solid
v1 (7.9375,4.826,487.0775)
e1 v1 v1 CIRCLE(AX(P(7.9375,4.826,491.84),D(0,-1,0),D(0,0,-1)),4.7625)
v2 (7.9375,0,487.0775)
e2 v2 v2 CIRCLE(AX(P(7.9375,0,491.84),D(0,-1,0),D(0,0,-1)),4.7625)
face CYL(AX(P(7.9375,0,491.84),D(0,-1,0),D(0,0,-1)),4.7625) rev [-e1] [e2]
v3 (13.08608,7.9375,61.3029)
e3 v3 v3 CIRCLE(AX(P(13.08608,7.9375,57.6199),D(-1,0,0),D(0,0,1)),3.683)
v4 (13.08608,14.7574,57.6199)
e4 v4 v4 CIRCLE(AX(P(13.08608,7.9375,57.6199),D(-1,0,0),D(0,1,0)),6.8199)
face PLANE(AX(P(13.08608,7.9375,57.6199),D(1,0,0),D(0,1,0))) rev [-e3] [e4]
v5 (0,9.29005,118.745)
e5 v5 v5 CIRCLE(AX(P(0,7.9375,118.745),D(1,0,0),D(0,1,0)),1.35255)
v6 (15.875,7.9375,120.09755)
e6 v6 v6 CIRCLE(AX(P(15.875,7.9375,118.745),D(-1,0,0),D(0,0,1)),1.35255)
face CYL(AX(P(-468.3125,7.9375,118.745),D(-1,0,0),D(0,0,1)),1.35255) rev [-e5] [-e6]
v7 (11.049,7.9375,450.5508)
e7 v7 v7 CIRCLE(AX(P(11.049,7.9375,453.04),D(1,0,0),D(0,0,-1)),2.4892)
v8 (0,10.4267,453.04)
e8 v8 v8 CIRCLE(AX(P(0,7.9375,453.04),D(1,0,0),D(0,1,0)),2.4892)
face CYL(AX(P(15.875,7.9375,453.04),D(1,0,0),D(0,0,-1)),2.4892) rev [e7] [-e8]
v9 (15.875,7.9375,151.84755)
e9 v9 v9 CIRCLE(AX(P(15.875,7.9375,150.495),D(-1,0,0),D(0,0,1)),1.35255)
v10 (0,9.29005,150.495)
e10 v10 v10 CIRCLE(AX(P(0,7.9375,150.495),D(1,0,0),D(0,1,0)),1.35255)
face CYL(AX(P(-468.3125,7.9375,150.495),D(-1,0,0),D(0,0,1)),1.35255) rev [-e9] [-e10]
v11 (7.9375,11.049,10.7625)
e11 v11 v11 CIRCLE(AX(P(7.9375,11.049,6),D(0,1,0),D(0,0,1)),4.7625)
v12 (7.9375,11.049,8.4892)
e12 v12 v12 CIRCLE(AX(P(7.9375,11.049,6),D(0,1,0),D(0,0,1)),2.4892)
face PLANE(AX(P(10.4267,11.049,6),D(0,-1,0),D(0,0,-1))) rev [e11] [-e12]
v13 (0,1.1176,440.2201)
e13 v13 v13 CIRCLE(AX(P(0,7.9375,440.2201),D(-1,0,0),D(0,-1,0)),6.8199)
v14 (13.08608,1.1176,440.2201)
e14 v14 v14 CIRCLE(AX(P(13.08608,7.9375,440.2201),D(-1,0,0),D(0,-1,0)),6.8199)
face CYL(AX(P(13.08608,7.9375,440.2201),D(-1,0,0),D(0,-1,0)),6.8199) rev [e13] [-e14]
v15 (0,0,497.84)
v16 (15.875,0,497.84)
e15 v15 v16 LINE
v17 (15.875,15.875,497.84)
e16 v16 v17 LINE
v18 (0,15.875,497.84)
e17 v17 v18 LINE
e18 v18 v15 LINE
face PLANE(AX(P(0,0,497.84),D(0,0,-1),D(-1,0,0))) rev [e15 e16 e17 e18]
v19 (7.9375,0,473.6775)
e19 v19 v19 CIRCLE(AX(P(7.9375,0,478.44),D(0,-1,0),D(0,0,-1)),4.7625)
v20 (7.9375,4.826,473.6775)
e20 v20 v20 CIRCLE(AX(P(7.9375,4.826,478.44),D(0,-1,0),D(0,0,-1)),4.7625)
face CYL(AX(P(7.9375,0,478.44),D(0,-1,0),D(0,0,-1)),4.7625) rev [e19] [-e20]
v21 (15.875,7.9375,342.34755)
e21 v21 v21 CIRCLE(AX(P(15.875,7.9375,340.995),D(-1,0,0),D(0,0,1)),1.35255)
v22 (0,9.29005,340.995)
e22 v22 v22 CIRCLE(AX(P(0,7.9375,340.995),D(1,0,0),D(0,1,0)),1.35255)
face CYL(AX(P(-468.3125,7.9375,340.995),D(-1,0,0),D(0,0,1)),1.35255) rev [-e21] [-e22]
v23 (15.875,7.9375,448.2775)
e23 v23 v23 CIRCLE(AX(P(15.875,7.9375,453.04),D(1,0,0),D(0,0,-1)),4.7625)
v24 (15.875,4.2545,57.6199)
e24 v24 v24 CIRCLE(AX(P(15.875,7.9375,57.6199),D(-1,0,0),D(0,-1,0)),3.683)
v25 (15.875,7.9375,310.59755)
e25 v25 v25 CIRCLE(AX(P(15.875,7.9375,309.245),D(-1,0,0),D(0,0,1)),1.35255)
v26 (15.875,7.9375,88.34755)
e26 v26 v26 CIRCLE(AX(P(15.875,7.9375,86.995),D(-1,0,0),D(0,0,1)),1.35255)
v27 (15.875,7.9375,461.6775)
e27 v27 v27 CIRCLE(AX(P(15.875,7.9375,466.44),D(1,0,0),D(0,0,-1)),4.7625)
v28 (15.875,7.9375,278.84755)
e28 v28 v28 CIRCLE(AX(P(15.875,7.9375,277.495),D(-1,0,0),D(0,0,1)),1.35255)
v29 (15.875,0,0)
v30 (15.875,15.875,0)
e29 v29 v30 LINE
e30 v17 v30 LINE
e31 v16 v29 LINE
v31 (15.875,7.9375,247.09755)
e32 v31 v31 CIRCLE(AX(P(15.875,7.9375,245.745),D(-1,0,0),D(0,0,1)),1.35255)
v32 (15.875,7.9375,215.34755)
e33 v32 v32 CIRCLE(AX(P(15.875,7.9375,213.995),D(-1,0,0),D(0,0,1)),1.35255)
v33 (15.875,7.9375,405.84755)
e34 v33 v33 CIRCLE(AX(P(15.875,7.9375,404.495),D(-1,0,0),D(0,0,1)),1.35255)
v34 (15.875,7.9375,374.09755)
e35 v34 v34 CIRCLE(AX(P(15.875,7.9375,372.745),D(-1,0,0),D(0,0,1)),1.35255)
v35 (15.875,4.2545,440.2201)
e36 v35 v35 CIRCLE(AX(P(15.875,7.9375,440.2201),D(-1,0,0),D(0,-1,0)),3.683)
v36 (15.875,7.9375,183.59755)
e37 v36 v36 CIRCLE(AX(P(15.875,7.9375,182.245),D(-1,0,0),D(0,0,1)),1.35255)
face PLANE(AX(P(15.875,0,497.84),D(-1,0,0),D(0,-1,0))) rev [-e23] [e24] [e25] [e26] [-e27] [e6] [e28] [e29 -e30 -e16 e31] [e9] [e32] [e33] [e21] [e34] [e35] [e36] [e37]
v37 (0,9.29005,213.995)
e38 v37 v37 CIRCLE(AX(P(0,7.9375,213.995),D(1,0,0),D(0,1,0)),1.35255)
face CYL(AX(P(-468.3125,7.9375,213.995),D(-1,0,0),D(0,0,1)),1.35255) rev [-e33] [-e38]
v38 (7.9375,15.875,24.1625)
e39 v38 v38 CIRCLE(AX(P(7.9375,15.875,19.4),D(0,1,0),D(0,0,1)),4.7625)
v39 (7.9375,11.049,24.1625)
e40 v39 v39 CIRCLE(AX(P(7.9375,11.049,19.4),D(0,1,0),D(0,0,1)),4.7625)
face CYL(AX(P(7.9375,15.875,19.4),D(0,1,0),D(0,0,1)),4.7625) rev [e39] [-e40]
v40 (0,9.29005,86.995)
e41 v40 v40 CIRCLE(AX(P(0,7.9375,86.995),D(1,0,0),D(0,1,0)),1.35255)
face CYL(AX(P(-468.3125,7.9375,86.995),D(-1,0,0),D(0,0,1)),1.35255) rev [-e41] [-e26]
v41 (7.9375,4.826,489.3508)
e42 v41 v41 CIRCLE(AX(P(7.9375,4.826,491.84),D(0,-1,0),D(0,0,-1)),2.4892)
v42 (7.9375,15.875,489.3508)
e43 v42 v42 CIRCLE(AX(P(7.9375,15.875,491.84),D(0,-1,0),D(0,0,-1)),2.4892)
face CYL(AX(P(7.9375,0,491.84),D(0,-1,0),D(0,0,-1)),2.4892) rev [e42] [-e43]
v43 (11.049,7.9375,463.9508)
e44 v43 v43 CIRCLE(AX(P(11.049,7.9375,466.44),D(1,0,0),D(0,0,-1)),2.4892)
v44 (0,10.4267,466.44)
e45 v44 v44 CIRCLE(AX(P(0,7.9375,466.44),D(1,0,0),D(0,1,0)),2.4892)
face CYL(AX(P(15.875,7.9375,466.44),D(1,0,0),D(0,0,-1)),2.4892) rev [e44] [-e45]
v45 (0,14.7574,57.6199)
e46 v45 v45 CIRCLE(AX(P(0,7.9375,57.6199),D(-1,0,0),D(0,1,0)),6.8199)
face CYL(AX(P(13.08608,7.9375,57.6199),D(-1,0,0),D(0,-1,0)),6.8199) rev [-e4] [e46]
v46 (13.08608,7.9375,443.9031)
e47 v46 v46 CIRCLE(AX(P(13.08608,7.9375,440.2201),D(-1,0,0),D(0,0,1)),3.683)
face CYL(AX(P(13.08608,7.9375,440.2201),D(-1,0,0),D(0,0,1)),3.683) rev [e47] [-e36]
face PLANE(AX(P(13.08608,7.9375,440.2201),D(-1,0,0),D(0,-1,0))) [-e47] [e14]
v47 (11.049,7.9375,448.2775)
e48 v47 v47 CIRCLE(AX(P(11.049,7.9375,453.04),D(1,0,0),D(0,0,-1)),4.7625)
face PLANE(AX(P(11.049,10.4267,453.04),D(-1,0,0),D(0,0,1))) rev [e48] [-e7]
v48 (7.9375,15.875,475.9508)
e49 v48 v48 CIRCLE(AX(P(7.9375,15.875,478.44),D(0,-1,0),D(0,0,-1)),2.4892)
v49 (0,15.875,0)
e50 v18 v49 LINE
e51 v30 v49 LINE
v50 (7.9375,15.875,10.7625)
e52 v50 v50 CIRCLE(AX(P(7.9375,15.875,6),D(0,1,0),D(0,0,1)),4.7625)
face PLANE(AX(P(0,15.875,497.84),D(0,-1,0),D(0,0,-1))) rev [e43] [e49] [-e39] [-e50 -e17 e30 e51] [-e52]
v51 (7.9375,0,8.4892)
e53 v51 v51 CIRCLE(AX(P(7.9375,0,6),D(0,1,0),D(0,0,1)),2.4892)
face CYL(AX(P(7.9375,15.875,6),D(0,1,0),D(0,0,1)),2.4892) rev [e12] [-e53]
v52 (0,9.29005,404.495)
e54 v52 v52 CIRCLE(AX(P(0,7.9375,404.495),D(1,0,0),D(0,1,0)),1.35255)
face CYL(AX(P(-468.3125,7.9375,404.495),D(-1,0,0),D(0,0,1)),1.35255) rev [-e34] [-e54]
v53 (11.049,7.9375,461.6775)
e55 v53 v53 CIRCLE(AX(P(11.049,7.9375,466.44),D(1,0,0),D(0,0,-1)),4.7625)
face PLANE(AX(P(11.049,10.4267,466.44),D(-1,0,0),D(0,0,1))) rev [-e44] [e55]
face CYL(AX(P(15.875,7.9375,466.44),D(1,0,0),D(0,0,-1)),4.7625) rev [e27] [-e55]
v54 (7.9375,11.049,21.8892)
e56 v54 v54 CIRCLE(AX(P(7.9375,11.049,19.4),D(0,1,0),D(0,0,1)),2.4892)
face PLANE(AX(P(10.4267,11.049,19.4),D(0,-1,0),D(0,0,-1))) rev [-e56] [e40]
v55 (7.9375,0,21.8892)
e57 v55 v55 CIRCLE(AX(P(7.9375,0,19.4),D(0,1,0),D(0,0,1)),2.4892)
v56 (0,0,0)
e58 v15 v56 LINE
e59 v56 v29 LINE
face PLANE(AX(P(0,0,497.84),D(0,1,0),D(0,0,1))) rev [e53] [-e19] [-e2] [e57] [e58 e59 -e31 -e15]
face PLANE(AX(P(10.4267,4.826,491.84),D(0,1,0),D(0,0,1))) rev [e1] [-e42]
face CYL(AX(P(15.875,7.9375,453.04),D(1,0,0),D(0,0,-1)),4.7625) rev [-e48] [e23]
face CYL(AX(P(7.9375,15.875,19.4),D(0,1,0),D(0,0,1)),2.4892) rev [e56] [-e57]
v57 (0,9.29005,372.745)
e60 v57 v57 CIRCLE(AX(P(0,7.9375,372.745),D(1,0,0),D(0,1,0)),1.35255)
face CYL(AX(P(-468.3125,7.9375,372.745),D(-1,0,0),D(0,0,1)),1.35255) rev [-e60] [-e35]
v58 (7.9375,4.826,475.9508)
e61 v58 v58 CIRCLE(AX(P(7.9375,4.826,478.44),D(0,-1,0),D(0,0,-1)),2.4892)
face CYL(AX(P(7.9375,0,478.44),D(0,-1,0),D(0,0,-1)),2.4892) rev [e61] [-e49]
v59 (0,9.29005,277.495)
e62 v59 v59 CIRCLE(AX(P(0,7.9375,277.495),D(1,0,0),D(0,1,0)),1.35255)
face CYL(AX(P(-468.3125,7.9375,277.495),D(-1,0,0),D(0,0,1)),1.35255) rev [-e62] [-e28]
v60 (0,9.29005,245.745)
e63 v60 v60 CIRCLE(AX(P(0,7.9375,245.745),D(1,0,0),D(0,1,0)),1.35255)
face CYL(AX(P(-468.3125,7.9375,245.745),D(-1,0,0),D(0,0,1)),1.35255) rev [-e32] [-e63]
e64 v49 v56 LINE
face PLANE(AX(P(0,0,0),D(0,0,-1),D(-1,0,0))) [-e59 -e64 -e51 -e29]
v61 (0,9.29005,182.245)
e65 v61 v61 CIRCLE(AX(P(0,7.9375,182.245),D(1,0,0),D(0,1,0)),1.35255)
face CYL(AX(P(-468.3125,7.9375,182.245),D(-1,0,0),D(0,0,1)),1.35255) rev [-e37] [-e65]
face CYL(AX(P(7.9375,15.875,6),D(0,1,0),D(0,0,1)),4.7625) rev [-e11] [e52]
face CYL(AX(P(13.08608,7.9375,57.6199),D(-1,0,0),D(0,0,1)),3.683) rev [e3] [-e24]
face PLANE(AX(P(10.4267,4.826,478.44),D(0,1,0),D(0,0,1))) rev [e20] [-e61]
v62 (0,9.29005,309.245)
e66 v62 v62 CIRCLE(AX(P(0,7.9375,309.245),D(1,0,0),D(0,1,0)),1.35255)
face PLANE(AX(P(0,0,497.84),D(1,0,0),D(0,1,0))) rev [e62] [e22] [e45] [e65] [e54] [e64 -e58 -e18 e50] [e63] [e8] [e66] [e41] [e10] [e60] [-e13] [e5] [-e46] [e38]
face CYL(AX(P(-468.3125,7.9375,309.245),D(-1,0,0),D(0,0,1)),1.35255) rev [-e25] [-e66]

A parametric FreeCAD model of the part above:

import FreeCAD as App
import Part
import Sketcher
from FreeCAD import Vector
Q = App.Units.Quantity

doc = App.newDocument("Part")
params = doc.addObject("Spreadsheet::Sheet", "Params")
for row, (alias, value) in enumerate([
    ("sketch1_width", "0.625 in"),
    ("pad1_length", "19.6 in"),
    ("sketch2_diameter", "0.537 in"),
    ("pocket1_length", "0.5152 in"),
    ("sketch3_diameter", "0.29 in"),
    ("hole_diameter", "0.29 in"),
    ("hole_depth", "2 in"),
    ("hole2_diameter", "0.1065 in"),
    ("sketch5_diameter", "0.196 in"),
    ("hole3_diameter", "0.196 in"),
    ("hole3_depth", "1 in"),
    ("hole3_cbore_diameter", "0.375 in"),
    ("hole3_cbore_depth", "0.19 in"),
    ("sketch6_diameter", "0.196 in"),
    ("hole4_diameter", "0.196 in"),
    ("hole4_depth", "1 in"),
    ("hole4_cbore_diameter", "0.375 in"),
    ("hole4_cbore_depth", "0.19 in"),
    ("sketch7_diameter", "0.196 in"),
    ("hole5_diameter", "0.196 in"),
    ("hole5_depth", "1 in"),
    ("hole5_cbore_diameter", "0.375 in"),
    ("hole5_cbore_depth", "0.19 in"),
], start=1):
    params.set(f"A{row}", alias)
    params.set(f"B{row}", "=" + value)
    params.setAlias(f"B{row}", alias)

body = doc.addObject("PartDesign::Body", "Body")

sketch1 = body.newObject("Sketcher::SketchObject", "Sketch")
sketch1.AttachmentSupport = (doc.getObject("XY_Plane"), [""])
sketch1.MapMode = "FlatFace"
sketch1.addGeometry([
    Part.LineSegment(Vector(0, 16, 0), Vector(0, 0, 0)),
    Part.LineSegment(Vector(0, 0, 0), Vector(16, 0, 0)),
    Part.LineSegment(Vector(16, 0, 0), Vector(16, 16, 0)),
    Part.LineSegment(Vector(16, 16, 0), Vector(0, 16, 0)),
], False)
sketch1.addConstraint([
    Sketcher.Constraint("Coincident", 0, 2, 1, 1),
    Sketcher.Constraint("Coincident", 1, 2, 2, 1),
    Sketcher.Constraint("Coincident", 2, 2, 3, 1),
    Sketcher.Constraint("Coincident", 3, 2, 0, 1),
    Sketcher.Constraint("Vertical", 0),
    Sketcher.Constraint("Horizontal", 1),
    Sketcher.Constraint("Vertical", 2),
    Sketcher.Constraint("Horizontal", 3),
    Sketcher.Constraint("Coincident", 0, 2, -1, 1),
    Sketcher.Constraint("Equal", 3, 0),
    Sketcher.Constraint("DistanceX", 1, 1, 1, 2, Q("0.625 in")),
])
sketch1.setExpression("Constraints[10]", "Params.sketch1_width")
pad1 = body.newObject("PartDesign::Pad", "Pad")
pad1.Profile = sketch1
pad1.setExpression("Length", "Params.pad1_length")

sketch2 = body.newObject("Sketcher::SketchObject", "Sketch001")
sketch2.AttachmentSupport = (doc.getObject("YZ_Plane"), [""])
sketch2.MapMode = "FlatFace"
sketch2.addGeometry([
    Part.Circle(Vector(8, 440, 0), Vector(0, 0, 1), 7),
    Part.Circle(Vector(8, 58, 0), Vector(0, 0, 1), 7),
], False)
sketch2.addConstraint([
    Sketcher.Constraint("Equal", 0, 1),
    Sketcher.Constraint("Vertical", 0, 3, 1, 3),
    Sketcher.Constraint("Diameter", 0, Q("0.537 in")),
    Sketcher.Constraint("DistanceX", -1, 1, 0, 3, Q("0.3125 in")),
    Sketcher.Constraint("DistanceY", 1, 3, 0, 3, Q("15.063 in")),
    Sketcher.Constraint("DistanceY", -1, 1, 0, 3, Q("17.3315 in")),
])
sketch2.setExpression("Constraints[2]", "Params.sketch2_diameter")
pocket1 = body.newObject("PartDesign::Pocket", "Pocket")
pocket1.Profile = sketch2
pocket1.setExpression("Length", "Params.pocket1_length")
pocket1.Reversed = True

sketch3 = body.newObject("Sketcher::SketchObject", "Sketch002")
sketch3.AttachmentSupport = (doc.getObject("YZ_Plane"), [""])
sketch3.MapMode = "FlatFace"
sketch3.AttachmentOffset = App.Placement(Vector(0, 0, 0.5152 * 25.4), App.Rotation())
sketch3.addGeometry([
    Part.Circle(Vector(7.9, 57.6, 0), Vector(0, 0, 1), 3.7),
    Part.Circle(Vector(7.9, 440.2, 0), Vector(0, 0, 1), 3.7),
], False)
sketch3.addConstraint([
    Sketcher.Constraint("Equal", 0, 1),
    Sketcher.Constraint("Vertical", 0, 3, 1, 3),
    Sketcher.Constraint("Diameter", 0, Q("0.29 in")),
    Sketcher.Constraint("DistanceX", -1, 1, 0, 3, Q("0.3125 in")),
    Sketcher.Constraint("DistanceY", 0, 3, 1, 3, Q("15.063 in")),
    Sketcher.Constraint("DistanceY", -1, 1, 0, 3, Q("2.2685 in")),
])
sketch3.setExpression("Constraints[2]", "Params.sketch3_diameter")
doc.recompute()
hole = body.newObject("PartDesign::Hole", "Hole")
hole.Profile = sketch3
hole.ThreadType = "None"
hole.setExpression("Diameter", "Params.hole_diameter")
hole.DepthType = "Dimension"
hole.setExpression("Depth", "Params.hole_depth")
hole.DrillPoint = "Angled"
hole.DrillPointAngle = 118
hole.Reversed = True

sketch4 = body.newObject("Sketcher::SketchObject", "Sketch003")
sketch4.AttachmentSupport = (doc.getObject("YZ_Plane"), [""])
sketch4.MapMode = "FlatFace"
sketch4.AttachmentOffset = App.Placement(Vector(0, 0, -18.4375 * 25.4), App.Rotation())
sketch4.addGeometry([
    Part.Circle(Vector(7.9, 404.5, 0), Vector(0, 0, 1), 1.4),
    Part.Circle(Vector(7.9, 372.7, 0), Vector(0, 0, 1), 1.4),
    Part.Circle(Vector(7.9, 341, 0), Vector(0, 0, 1), 1.4),
    Part.Circle(Vector(7.9, 309.2, 0), Vector(0, 0, 1), 1.4),
    Part.Circle(Vector(7.9, 277.5, 0), Vector(0, 0, 1), 1.4),
    Part.Circle(Vector(7.9, 245.7, 0), Vector(0, 0, 1), 1.4),
    Part.Circle(Vector(7.9, 214, 0), Vector(0, 0, 1), 1.4),
    Part.Circle(Vector(7.9, 182.2, 0), Vector(0, 0, 1), 1.4),
    Part.Circle(Vector(7.9, 150.5, 0), Vector(0, 0, 1), 1.4),
    Part.Circle(Vector(7.9, 118.7, 0), Vector(0, 0, 1), 1.4),
    Part.Circle(Vector(7.9, 87, 0), Vector(0, 0, 1), 1.4),
], False)
sketch4.addConstraint([
    Sketcher.Constraint("Equal", 0, 1),
    Sketcher.Constraint("Equal", 1, 2),
    Sketcher.Constraint("Equal", 2, 3),
    Sketcher.Constraint("Equal", 3, 4),
    Sketcher.Constraint("Equal", 4, 5),
    Sketcher.Constraint("Equal", 5, 6),
    Sketcher.Constraint("Equal", 6, 7),
    Sketcher.Constraint("Equal", 7, 8),
    Sketcher.Constraint("Equal", 8, 9),
    Sketcher.Constraint("Equal", 9, 10),
    Sketcher.Constraint("Vertical", 0, 3, 1, 3),
    Sketcher.Constraint("Vertical", 1, 3, 2, 3),
    Sketcher.Constraint("Vertical", 2, 3, 3, 3),
    Sketcher.Constraint("Vertical", 3, 3, 4, 3),
    Sketcher.Constraint("Vertical", 4, 3, 5, 3),
    Sketcher.Constraint("Vertical", 5, 3, 6, 3),
    Sketcher.Constraint("Vertical", 6, 3, 7, 3),
    Sketcher.Constraint("Vertical", 7, 3, 8, 3),
    Sketcher.Constraint("Vertical", 8, 3, 9, 3),
    Sketcher.Constraint("Vertical", 9, 3, 10, 3),
    Sketcher.Constraint("DistanceY", 4, 3, 0, 3, Q("5 in")),
    Sketcher.Constraint("DistanceY", 5, 3, 1, 3, Q("5 in")),
    Sketcher.Constraint("DistanceY", 6, 3, 2, 3, Q("5 in")),
    Sketcher.Constraint("DistanceY", 7, 3, 3, 3, Q("5 in")),
    Sketcher.Constraint("DistanceY", 8, 3, 4, 3, Q("5 in")),
    Sketcher.Constraint("DistanceY", 9, 3, 5, 3, Q("5 in")),
    Sketcher.Constraint("DistanceY", 10, 3, 6, 3, Q("5 in")),
    Sketcher.Constraint("Diameter", 0, Q("0.1065 in")),
    Sketcher.Constraint("DistanceY", 2, 3, 0, 3, Q("2.5 in")),
    Sketcher.Constraint("DistanceY", 3, 3, 1, 3, Q("2.5 in")),
    Sketcher.Constraint("DistanceY", 1, 3, 0, 3, Q("1.25 in")),
    Sketcher.Constraint("DistanceX", -1, 1, 0, 3, Q("0.3125 in")),
    Sketcher.Constraint("DistanceY", -1, 1, 0, 3, Q("15.925 in")),
])
doc.recompute()
hole2 = body.newObject("PartDesign::Hole", "Hole001")
hole2.Profile = sketch4
hole2.ThreadType = "None"
hole2.setExpression("Diameter", "Params.hole2_diameter")
hole2.DepthType = "ThroughAll"
hole2.Reversed = True

sketch5 = body.newObject("Sketcher::SketchObject", "Sketch004")
sketch5.AttachmentSupport = (doc.getObject("XZ_Plane"), [""])
sketch5.MapMode = "FlatFace"
sketch5.addGeometry([
    Part.Circle(Vector(-458.8, 478.4, 0), Vector(0, 0, 1), 2.5),
    Part.Circle(Vector(-458.8, 491.8, 0), Vector(0, 0, 1), 2.5),
    Part.Circle(Vector(7.9, 478.4, 0), Vector(0, 0, 1), 2.5),
    Part.Circle(Vector(7.9, 491.8, 0), Vector(0, 0, 1), 2.5),
], False)
sketch5.addConstraint([
    Sketcher.Constraint("Equal", 0, 1),
    Sketcher.Constraint("Equal", 1, 2),
    Sketcher.Constraint("Equal", 2, 3),
    Sketcher.Constraint("Horizontal", 0, 3, 2, 3),
    Sketcher.Constraint("Horizontal", 1, 3, 3, 3),
    Sketcher.Constraint("Vertical", 0, 3, 1, 3),
    Sketcher.Constraint("Vertical", 2, 3, 3, 3),
    Sketcher.Constraint("Diameter", 0, Q("0.196 in")),
    Sketcher.Constraint("DistanceX", 0, 3, -1, 1, Q("18.0625 in")),
    Sketcher.Constraint("DistanceX", -1, 1, 2, 3, Q("0.3125 in")),
    Sketcher.Constraint("DistanceY", -1, 1, 0, 3, Q("478.44 mm")),
    Sketcher.Constraint("DistanceY", -1, 1, 1, 3, Q("491.84 mm")),
])
sketch5.setExpression("Constraints[7]", "Params.sketch5_diameter")
doc.recompute()
hole3 = body.newObject("PartDesign::Hole", "Hole002")
hole3.Profile = sketch5
hole3.ThreadType = "None"
hole3.setExpression("Diameter", "Params.hole3_diameter")
hole3.DepthType = "Dimension"
hole3.setExpression("Depth", "Params.hole3_depth")
hole3.DrillPoint = "Angled"
hole3.DrillPointAngle = 118
hole3.HoleCutType = "Counterbore"
hole3.setExpression("HoleCutDiameter", "Params.hole3_cbore_diameter")
hole3.setExpression("HoleCutDepth", "Params.hole3_cbore_depth")

sketch6 = body.newObject("Sketcher::SketchObject", "Sketch005")
sketch6.AttachmentSupport = (doc.getObject("XZ_Plane"), [""])
sketch6.MapMode = "FlatFace"
sketch6.AttachmentOffset = App.Placement(Vector(0, 0, -0.625 * 25.4), App.Rotation())
sketch6.addGeometry([
    Part.Circle(Vector(7.9, 19.4, 0), Vector(0, 0, 1), 2.5),
    Part.Circle(Vector(7.9, 6, 0), Vector(0, 0, 1), 2.5),
    Part.Circle(Vector(-458.8, 19.4, 0), Vector(0, 0, 1), 2.5),
    Part.Circle(Vector(-458.8, 6, 0), Vector(0, 0, 1), 2.5),
], False)
sketch6.addConstraint([
    Sketcher.Constraint("Equal", 0, 1),
    Sketcher.Constraint("Equal", 1, 2),
    Sketcher.Constraint("Equal", 2, 3),
    Sketcher.Constraint("Horizontal", 0, 3, 2, 3),
    Sketcher.Constraint("Horizontal", 1, 3, 3, 3),
    Sketcher.Constraint("Vertical", 0, 3, 1, 3),
    Sketcher.Constraint("Vertical", 2, 3, 3, 3),
    Sketcher.Constraint("Diameter", 0, Q("0.196 in")),
    Sketcher.Constraint("DistanceX", -1, 1, 0, 3, Q("0.3125 in")),
    Sketcher.Constraint("DistanceX", 2, 3, -1, 1, Q("18.0625 in")),
    Sketcher.Constraint("DistanceY", -1, 1, 0, 3, Q("19.4 mm")),
    Sketcher.Constraint("DistanceY", -1, 1, 1, 3, Q("6 mm")),
])
sketch6.setExpression("Constraints[7]", "Params.sketch6_diameter")
doc.recompute()
hole4 = body.newObject("PartDesign::Hole", "Hole003")
hole4.Profile = sketch6
hole4.ThreadType = "None"
hole4.setExpression("Diameter", "Params.hole4_diameter")
hole4.DepthType = "Dimension"
hole4.setExpression("Depth", "Params.hole4_depth")
hole4.DrillPoint = "Angled"
hole4.DrillPointAngle = 118
hole4.HoleCutType = "Counterbore"
hole4.setExpression("HoleCutDiameter", "Params.hole4_cbore_diameter")
hole4.setExpression("HoleCutDepth", "Params.hole4_cbore_depth")
hole4.Reversed = True

sketch7 = body.newObject("Sketcher::SketchObject", "Sketch006")
sketch7.AttachmentSupport = (doc.getObject("YZ_Plane"), [""])
sketch7.MapMode = "FlatFace"
sketch7.AttachmentOffset = App.Placement(Vector(0, 0, 0.625 * 25.4), App.Rotation())
sketch7.addGeometry([
    Part.Circle(Vector(7.9, 453, 0), Vector(0, 0, 1), 2.5),
    Part.Circle(Vector(7.9, 466.4, 0), Vector(0, 0, 1), 2.5),
], False)
sketch7.addConstraint([
    Sketcher.Constraint("Equal", 0, 1),
    Sketcher.Constraint("Vertical", 0, 3, 1, 3),
    Sketcher.Constraint("Diameter", 0, Q("0.196 in")),
    Sketcher.Constraint("DistanceX", -1, 1, 0, 3, Q("0.3125 in")),
    Sketcher.Constraint("DistanceY", -1, 1, 0, 3, Q("453.04 mm")),
    Sketcher.Constraint("DistanceY", -1, 1, 1, 3, Q("466.44 mm")),
])
sketch7.setExpression("Constraints[2]", "Params.sketch7_diameter")
doc.recompute()
hole5 = body.newObject("PartDesign::Hole", "Hole004")
hole5.Profile = sketch7
hole5.ThreadType = "None"
hole5.setExpression("Diameter", "Params.hole5_diameter")
hole5.DepthType = "Dimension"
hole5.setExpression("Depth", "Params.hole5_depth")
hole5.DrillPoint = "Angled"
hole5.DrillPointAngle = 118
hole5.HoleCutType = "Counterbore"
hole5.setExpression("HoleCutDiameter", "Params.hole5_cbore_diameter")
hole5.setExpression("HoleCutDepth", "Params.hole5_cbore_depth")

doc.recompute()
